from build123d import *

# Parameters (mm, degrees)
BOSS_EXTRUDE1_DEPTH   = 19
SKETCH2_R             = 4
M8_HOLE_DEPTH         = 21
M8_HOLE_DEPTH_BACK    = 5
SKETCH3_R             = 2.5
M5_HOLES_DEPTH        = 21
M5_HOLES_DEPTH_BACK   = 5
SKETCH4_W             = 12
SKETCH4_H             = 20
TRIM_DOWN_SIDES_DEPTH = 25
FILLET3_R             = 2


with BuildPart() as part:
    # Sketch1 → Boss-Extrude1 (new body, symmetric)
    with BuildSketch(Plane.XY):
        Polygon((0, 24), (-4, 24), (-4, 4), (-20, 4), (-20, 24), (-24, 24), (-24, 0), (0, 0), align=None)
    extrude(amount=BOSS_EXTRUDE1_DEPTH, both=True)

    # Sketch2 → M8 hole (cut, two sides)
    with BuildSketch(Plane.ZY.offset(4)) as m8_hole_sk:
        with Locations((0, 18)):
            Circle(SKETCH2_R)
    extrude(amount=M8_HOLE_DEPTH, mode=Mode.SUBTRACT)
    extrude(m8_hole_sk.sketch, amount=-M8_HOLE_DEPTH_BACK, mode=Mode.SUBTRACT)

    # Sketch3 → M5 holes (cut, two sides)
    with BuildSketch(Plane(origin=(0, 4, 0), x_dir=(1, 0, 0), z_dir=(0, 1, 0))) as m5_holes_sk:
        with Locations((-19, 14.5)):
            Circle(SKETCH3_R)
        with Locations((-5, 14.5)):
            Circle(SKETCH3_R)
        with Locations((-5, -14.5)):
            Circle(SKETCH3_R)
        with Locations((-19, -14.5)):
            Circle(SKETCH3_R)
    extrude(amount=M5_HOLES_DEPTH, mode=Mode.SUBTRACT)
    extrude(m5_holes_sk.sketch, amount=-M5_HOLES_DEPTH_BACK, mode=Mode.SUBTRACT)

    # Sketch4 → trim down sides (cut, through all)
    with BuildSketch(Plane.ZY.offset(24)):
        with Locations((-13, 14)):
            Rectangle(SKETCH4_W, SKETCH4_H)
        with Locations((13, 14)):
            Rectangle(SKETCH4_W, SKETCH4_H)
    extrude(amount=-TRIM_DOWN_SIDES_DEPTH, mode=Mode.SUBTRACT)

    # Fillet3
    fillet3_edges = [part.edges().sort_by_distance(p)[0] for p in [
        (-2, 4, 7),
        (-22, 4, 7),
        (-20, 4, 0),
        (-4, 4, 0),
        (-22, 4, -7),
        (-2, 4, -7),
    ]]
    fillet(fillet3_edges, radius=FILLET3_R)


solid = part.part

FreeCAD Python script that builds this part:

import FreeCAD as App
import Part
import Sketcher
Q = App.Units.Quantity


def edges_at(feature, points):
    """Names of the edges that pass closest to the given points."""
    edges = feature.Shape.Edges
    near = lambda p: min(range(len(edges)), key=lambda i: edges[i].distToShape(Part.Vertex(*p))[0])
    return sorted({f"Edge{near(p) + 1}" for p in points})


def add_polygon(sketch, points):
    """Adds a closed chain of lines whose ends are joined by coincident constraints."""
    first, n = sketch.GeometryCount, len(points)
    for a, b in zip(points, points[1:] + points[:1]):
        sketch.addGeometry(Part.LineSegment(App.Vector(*a, 0), App.Vector(*b, 0)), False)
    for i in range(n):
        sketch.addConstraint(Sketcher.Constraint("Coincident", first + i, 2, first + (i + 1) % n, 1))

doc = App.newDocument("Part")
body = doc.addObject("PartDesign::Body", "Body")

sketch1 = body.newObject("Sketcher::SketchObject", "Sketch")
sketch1.AttachmentSupport = (doc.getObject("XY_Plane"), [""])
sketch1.MapMode = "FlatFace"
add_polygon(sketch1, [(0, 24), (-4, 24), (-4, 4), (-20, 4), (-20, 24), (-24, 24), (-24, 0), (0, 0)])
sketch1.addConstraint([
    Sketcher.Constraint("Horizontal", 0),
    Sketcher.Constraint("Vertical", 1),
    Sketcher.Constraint("Horizontal", 2),
    Sketcher.Constraint("Vertical", 3),
    Sketcher.Constraint("Horizontal", 4),
    Sketcher.Constraint("Vertical", 5),
    Sketcher.Constraint("Horizontal", 6),
    Sketcher.Constraint("Vertical", 7),
    Sketcher.Constraint("Coincident", 6, 2, -1, 1),
    Sketcher.Constraint("Horizontal", 0, 2, 3, 2),
    Sketcher.Constraint("Equal", 0, 4),
    Sketcher.Constraint("Equal", 6, 5),
    Sketcher.Constraint("DistanceX", 0, 2, 0, 1, Q("4 mm")),
    Sketcher.Constraint("DistanceX", 2, 2, 2, 1, Q("16 mm")),
    Sketcher.Constraint("DistanceY", 1, 2, 1, 1, Q("20 mm")),
])
pad1 = body.newObject("PartDesign::Pad", "Pad")
pad1.Profile = sketch1
pad1.Length = 38
pad1.Midplane = True

sketch2 = body.newObject("Sketcher::SketchObject", "Sketch001")
sketch2.AttachmentSupport = (doc.getObject("YZ_Plane"), [""])
sketch2.MapMode = "FlatFace"
sketch2.AttachmentOffset = App.Placement(App.Vector(0, 0, -4), App.Rotation())
sketch2.addGeometry(Part.Circle(App.Vector(18, 0, 0), App.Vector(0, 0, 1), 4), False)
sketch2.addConstraint([
    Sketcher.Constraint("PointOnObject", 0, 3, -1),
    Sketcher.Constraint("Diameter", 0, Q("8 mm")),
    Sketcher.Constraint("DistanceX", -1, 1, 0, 3, Q("18 mm")),
])
pocket1 = body.newObject("PartDesign::Pocket", "Pocket")
pocket1.Profile = sketch2
pocket1.Type = "ThroughAll"
pocket1.Midplane = True

sketch3 = body.newObject("Sketcher::SketchObject", "Sketch002")
sketch3.AttachmentSupport = (doc.getObject("XZ_Plane"), [""])
sketch3.MapMode = "FlatFace"
sketch3.AttachmentOffset = App.Placement(App.Vector(0, 0, -4), App.Rotation())
sketch3.addGeometry([
    Part.Circle(App.Vector(-19, -14.5, 0), App.Vector(0, 0, 1), 2.5),
    Part.Circle(App.Vector(-5, -14.5, 0), App.Vector(0, 0, 1), 2.5),
    Part.Circle(App.Vector(-5, 14.5, 0), App.Vector(0, 0, 1), 2.5),
    Part.Circle(App.Vector(-19, 14.5, 0), App.Vector(0, 0, 1), 2.5),
], False)
sketch3.addConstraint([
    Sketcher.Constraint("Equal", 0, 1),
    Sketcher.Constraint("Equal", 1, 2),
    Sketcher.Constraint("Equal", 2, 3),
    Sketcher.Constraint("Symmetric", 1, 3, 2, 3, -1),
    Sketcher.Constraint("Symmetric", 0, 3, 3, 3, -1),
    Sketcher.Constraint("Horizontal", 0, 3, 1, 3),
    Sketcher.Constraint("Diameter", 0, Q("5 mm")),
    Sketcher.Constraint("DistanceX", 0, 3, -1, 1, Q("19 mm")),
    Sketcher.Constraint("DistanceX", 1, 3, -1, 1, Q("5 mm")),
    Sketcher.Constraint("DistanceY", 1, 3, 2, 3, Q("29 mm")),
])
pocket2 = body.newObject("PartDesign::Pocket", "Pocket001")
pocket2.Profile = sketch3
pocket2.Type = "ThroughAll"
pocket2.Midplane = True

sketch4 = body.newObject("Sketcher::SketchObject", "Sketch003")
sketch4.AttachmentSupport = (doc.getObject("YZ_Plane"), [""])
sketch4.MapMode = "FlatFace"
sketch4.AttachmentOffset = App.Placement(App.Vector(0, 0, -24), App.Rotation())
add_polygon(sketch4, [(24, -19), (4, -19), (4, -7), (24, -7)])
add_polygon(sketch4, [(24, 7), (4, 7), (4, 19), (24, 19)])
sketch4.addConstraint([
    Sketcher.Constraint("Horizontal", 0),
    Sketcher.Constraint("Vertical", 1),
    Sketcher.Constraint("Horizontal", 2),
    Sketcher.Constraint("Vertical", 3),
    Sketcher.Constraint("Horizontal", 4),
    Sketcher.Constraint("Vertical", 5),
    Sketcher.Constraint("Horizontal", 6),
    Sketcher.Constraint("Vertical", 7),
    Sketcher.Constraint("Symmetric", 1, 2, 4, 2, -1),
    Sketcher.Constraint("Symmetric", 3, 2, 6, 2, -1),
    Sketcher.Constraint("DistanceX", 0, 2, 0, 1, Q("20 mm")),
    Sketcher.Constraint("DistanceY", 1, 1, 1, 2, Q("12 mm")),
    Sketcher.Constraint("DistanceX", -1, 1, 0, 2, Q("4 mm")),
    Sketcher.Constraint("DistanceY", 0, 2, -1, 1, Q("19 mm")),
])
pocket3 = body.newObject("PartDesign::Pocket", "Pocket002")
pocket3.Profile = sketch4
pocket3.Type = "ThroughAll"
pocket3.Reversed = True
doc.recompute()

fillet = body.newObject("PartDesign::Fillet", "Fillet")
fillet.Base = (pocket3, edges_at(pocket3, [
    (-2, 4, 7),
    (-22, 4, 7),
    (-20, 4, 0),
    (-4, 4, 0),
    (-22, 4, -7),
    (-2, 4, -7),
]))
fillet.Radius = 2

doc.recompute()
